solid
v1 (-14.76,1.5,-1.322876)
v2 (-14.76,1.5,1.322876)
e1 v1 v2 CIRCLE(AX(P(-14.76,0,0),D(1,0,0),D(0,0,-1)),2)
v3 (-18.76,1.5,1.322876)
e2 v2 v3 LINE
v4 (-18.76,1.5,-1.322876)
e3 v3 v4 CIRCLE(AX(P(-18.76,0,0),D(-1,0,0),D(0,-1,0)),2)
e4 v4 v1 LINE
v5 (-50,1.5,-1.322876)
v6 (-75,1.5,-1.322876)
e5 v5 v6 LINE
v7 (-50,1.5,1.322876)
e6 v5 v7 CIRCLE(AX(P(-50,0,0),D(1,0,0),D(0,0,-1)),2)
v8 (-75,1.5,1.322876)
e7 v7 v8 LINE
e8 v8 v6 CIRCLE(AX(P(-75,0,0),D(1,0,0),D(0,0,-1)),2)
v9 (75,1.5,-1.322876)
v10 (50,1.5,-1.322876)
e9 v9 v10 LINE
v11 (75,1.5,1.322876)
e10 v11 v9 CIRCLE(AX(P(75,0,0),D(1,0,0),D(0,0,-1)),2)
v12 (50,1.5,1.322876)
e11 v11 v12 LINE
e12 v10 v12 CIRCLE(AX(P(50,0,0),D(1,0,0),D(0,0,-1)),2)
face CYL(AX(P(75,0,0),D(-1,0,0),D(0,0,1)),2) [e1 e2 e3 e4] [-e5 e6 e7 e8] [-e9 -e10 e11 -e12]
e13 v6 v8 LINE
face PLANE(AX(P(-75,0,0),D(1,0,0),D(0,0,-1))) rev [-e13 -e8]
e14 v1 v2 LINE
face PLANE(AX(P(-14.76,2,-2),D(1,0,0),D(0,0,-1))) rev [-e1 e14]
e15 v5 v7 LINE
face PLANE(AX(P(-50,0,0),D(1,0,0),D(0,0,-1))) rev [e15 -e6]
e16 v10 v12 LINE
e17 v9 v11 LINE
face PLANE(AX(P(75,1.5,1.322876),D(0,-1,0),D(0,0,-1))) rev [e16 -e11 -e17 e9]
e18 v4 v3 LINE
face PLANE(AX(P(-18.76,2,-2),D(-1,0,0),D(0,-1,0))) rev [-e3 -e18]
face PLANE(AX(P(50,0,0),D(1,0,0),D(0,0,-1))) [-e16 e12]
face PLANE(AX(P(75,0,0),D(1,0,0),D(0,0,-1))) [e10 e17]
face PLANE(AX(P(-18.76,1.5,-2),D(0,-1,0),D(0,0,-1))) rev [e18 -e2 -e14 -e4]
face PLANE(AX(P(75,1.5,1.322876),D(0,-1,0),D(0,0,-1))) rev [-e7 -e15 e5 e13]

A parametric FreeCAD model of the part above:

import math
import FreeCAD as App
import Part
import Sketcher

V = App.Vector
Q = App.Units.Quantity

doc = App.newDocument("Part")
body = doc.addObject("PartDesign::Body", "Body")

# Sketch on YZ plane
sketch1 = body.newObject("Sketcher::SketchObject", "Sketch")
sketch1.AttachmentSupport = (doc.getObject("YZ_Plane"), [""])
sketch1.MapMode = "FlatFace"
sketch1.addGeometry([
    Part.LineSegment(V(1.5, -1.3, 0), V(1.5, 1.3, 0)),
    Part.ArcOfCircle(Part.Circle(V(0, 0, 0), V(0, 0, 1), 2), math.radians(41), math.radians(319)),
], False)
sketch1.addConstraint([
    Sketcher.Constraint("Coincident", 0, 1, 1, 2),
    Sketcher.Constraint("Coincident", 1, 1, 0, 2),
    Sketcher.Constraint("Vertical", 0),
    Sketcher.Constraint("Coincident", 1, 3, -1, 1),
    Sketcher.Constraint("Radius", 1, Q("2 mm")),
    Sketcher.Constraint("DistanceX", -1, 1, 0, 1, Q("1.5 mm")),
])
pad1 = body.newObject("PartDesign::Pad", "Pad")
pad1.Profile = sketch1
pad1.Length = 150
pad1.Midplane = True

# Sketch on YZ plane
sketch2 = body.newObject("Sketcher::SketchObject", "Sketch001")
sketch2.AttachmentSupport = (doc.getObject("YZ_Plane"), [""])
sketch2.MapMode = "FlatFace"
sketch2.addGeometry(Part.Circle(V(0, 0, 0), V(0, 0, 1), 2), False)
sketch2.addConstraint([
    Sketcher.Constraint("Coincident", 0, 3, -1, 1),
    Sketcher.Constraint("Diameter", 0, Q("4 mm")),
])
pad2 = body.newObject("PartDesign::Pad", "Pad001")
pad2.Profile = sketch2
pad2.Length = 100
pad2.Midplane = True

# Sketch on XY plane
sketch3 = body.newObject("Sketcher::SketchObject", "Sketch002")
sketch3.AttachmentSupport = (doc.getObject("XY_Plane"), [""])
sketch3.MapMode = "FlatFace"
sketch3.addGeometry([
    Part.LineSegment(V(-18.8, 2, 0), V(-18.8, 1.5, 0)),
    Part.LineSegment(V(-18.8, 1.5, 0), V(-14.8, 1.5, 0)),
    Part.LineSegment(V(-14.8, 1.5, 0), V(-14.8, 2, 0)),
    Part.LineSegment(V(-14.8, 2, 0), V(-18.8, 2, 0)),
], False)
sketch3.addConstraint([
    Sketcher.Constraint("Coincident", 0, 2, 1, 1),
    Sketcher.Constraint("Coincident", 1, 2, 2, 1),
    Sketcher.Constraint("Coincident", 2, 2, 3, 1),
    Sketcher.Constraint("Coincident", 3, 2, 0, 1),
    Sketcher.Constraint("Vertical", 0),
    Sketcher.Constraint("Horizontal", 1),
    Sketcher.Constraint("Vertical", 2),
    Sketcher.Constraint("Horizontal", 3),
    Sketcher.Constraint("DistanceX", 1, 1, 1, 2, Q("4 mm")),
    Sketcher.Constraint("DistanceY", 0, 2, 0, 1, Q("0.5 mm")),
    Sketcher.Constraint("DistanceY", -1, 1, 2, 2, Q("2 mm")),
    Sketcher.Constraint("DistanceX", 0, 2, -1, 1, Q("18.76 mm")),
])
pocket1 = body.newObject("PartDesign::Pocket", "Pocket")
pocket1.Profile = sketch3
pocket1.Type = "ThroughAll"
pocket1.Midplane = True

doc.recompute()
